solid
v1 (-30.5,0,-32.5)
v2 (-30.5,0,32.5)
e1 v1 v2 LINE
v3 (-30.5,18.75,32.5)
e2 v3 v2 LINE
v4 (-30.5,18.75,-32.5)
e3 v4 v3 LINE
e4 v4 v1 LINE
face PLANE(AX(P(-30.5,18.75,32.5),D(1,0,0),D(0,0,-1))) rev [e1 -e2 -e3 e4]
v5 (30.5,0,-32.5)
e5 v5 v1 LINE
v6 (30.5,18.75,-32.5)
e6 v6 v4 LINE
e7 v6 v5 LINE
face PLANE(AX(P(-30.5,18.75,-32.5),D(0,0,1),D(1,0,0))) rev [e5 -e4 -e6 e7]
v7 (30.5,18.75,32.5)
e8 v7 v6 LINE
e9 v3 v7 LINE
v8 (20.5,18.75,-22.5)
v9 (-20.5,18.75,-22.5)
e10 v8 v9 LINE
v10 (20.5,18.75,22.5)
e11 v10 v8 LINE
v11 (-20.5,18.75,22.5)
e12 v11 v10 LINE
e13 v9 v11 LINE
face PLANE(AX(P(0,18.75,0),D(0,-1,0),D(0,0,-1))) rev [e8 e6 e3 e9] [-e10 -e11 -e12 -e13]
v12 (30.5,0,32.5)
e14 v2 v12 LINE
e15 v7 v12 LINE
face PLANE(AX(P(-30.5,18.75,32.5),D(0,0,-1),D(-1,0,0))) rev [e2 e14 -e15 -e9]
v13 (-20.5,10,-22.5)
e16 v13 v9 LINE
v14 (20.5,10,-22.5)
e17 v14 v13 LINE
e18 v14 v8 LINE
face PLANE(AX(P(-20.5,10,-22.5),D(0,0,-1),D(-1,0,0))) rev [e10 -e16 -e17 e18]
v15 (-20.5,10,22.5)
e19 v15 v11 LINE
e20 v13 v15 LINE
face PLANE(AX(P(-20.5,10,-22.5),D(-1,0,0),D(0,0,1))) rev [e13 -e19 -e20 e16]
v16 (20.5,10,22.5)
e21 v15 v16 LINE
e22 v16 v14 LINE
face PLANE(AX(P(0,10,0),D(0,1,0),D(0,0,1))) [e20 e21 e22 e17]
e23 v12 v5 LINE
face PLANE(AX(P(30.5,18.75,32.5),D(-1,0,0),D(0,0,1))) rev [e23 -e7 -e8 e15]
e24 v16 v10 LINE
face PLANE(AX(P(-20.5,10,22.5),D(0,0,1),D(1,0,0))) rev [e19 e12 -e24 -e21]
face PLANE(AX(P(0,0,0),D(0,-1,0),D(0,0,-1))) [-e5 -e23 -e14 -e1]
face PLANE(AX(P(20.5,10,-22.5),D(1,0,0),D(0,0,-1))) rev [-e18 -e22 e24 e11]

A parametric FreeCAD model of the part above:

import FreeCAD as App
import Part
import Sketcher
Q = App.Units.Quantity


def add_polygon(sketch, points):
    """Adds a closed chain of lines whose ends are joined by coincident constraints."""
    first, n = sketch.GeometryCount, len(points)
    for a, b in zip(points, points[1:] + points[:1]):
        sketch.addGeometry(Part.LineSegment(App.Vector(*a, 0), App.Vector(*b, 0)), False)
    for i in range(n):
        sketch.addConstraint(Sketcher.Constraint("Coincident", first + i, 2, first + (i + 1) % n, 1))

doc = App.newDocument("Part")
body = doc.addObject("PartDesign::Body", "Body")

# Sketch on XZ plane
sketch1 = body.newObject("Sketcher::SketchObject", "Sketch")
sketch1.AttachmentSupport = (doc.getObject("XZ_Plane"), [""])
sketch1.MapMode = "FlatFace"
add_polygon(sketch1, [(-30.5, -32.5), (-30.5, 32.5), (30.5, 32.5), (30.5, -32.5)])  # lines 0-3
sketch1.addConstraint(Sketcher.Constraint("Vertical", 0))
sketch1.addConstraint(Sketcher.Constraint("Horizontal", 1))
sketch1.addConstraint(Sketcher.Constraint("Vertical", 2))
sketch1.addConstraint(Sketcher.Constraint("Horizontal", 3))
sketch1.addConstraint(Sketcher.Constraint("Symmetric", 0, 2, 2, 2, -1, 1))
sketch1.addConstraint(Sketcher.Constraint("DistanceX", 1, 1, 1, 2, Q("61 mm")))
sketch1.addConstraint(Sketcher.Constraint("DistanceY", 0, 1, 0, 2, Q("65 mm")))
pad1 = body.newObject("PartDesign::Pad", "Pad")
pad1.Profile = sketch1
pad1.Length = 18.75
pad1.Reversed = True

# Sketch on XZ plane
sketch2 = body.newObject("Sketcher::SketchObject", "Sketch001")
sketch2.AttachmentSupport = (doc.getObject("XZ_Plane"), [""])
sketch2.MapMode = "FlatFace"
sketch2.AttachmentOffset = App.Placement(App.Vector(0, 0, -18.75), App.Rotation())
add_polygon(sketch2, [(-20.5, -22.5), (-20.5, 22.5), (20.5, 22.5), (20.5, -22.5)])  # lines 0-3
sketch2.addConstraint(Sketcher.Constraint("Vertical", 0))
sketch2.addConstraint(Sketcher.Constraint("Horizontal", 1))
sketch2.addConstraint(Sketcher.Constraint("Vertical", 2))
sketch2.addConstraint(Sketcher.Constraint("Horizontal", 3))
sketch2.addConstraint(Sketcher.Constraint("Symmetric", 0, 2, 2, 2, -1, 1))
sketch2.addConstraint(Sketcher.Constraint("DistanceX", 1, 1, 1, 2, Q("41 mm")))
sketch2.addConstraint(Sketcher.Constraint("DistanceY", 0, 1, 0, 2, Q("45 mm")))
pocket1 = body.newObject("PartDesign::Pocket", "Pocket")
pocket1.Profile = sketch2
pocket1.Length = 8.75
pocket1.Reversed = True

doc.recompute()
